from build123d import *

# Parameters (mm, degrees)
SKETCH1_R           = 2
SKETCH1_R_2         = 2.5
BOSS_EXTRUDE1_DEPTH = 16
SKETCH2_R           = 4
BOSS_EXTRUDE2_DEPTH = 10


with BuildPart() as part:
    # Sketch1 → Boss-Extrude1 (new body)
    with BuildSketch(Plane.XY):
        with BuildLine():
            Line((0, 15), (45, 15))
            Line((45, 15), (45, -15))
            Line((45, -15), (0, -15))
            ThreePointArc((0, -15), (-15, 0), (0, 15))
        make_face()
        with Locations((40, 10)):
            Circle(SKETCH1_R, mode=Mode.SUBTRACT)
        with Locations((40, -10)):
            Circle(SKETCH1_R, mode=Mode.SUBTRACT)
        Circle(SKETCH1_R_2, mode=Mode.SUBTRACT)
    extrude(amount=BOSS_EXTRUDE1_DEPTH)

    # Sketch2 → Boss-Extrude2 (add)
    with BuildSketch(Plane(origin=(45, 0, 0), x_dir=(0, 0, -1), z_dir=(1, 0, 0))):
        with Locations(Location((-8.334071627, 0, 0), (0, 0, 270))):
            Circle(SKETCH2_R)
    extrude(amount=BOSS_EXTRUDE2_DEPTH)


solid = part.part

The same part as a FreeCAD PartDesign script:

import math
import FreeCAD as App
import Part
import Sketcher

V = App.Vector

doc = App.newDocument("Part")
body = doc.addObject("PartDesign::Body", "Body")

sketch1 = doc.addObject("Sketcher::SketchObject", "Sketch")
body.addObject(sketch1)
sketch1.AttachmentSupport = (doc.XY_Plane, [""])
sketch1.MapMode = "FlatFace"
sketch1.addGeometry([
    Part.LineSegment(V(45, 15, 0), V(0, 15, 0)),
    Part.ArcOfCircle(Part.Circle(V(0, 0, 0), V(0, 0, 1), 15), math.radians(90), math.radians(270)),
    Part.LineSegment(V(0, -15, 0), V(45, -15, 0)),
    Part.LineSegment(V(45, -15, 0), V(45, 15, 0)),
    Part.Circle(V(40, -10, 0), V(0, 0, 1), 2),
    Part.Circle(V(40, 10, 0), V(0, 0, 1), 2),
    Part.Circle(V(0, 0, 0), V(0, 0, 1), 2.5),
], False)
sketch1.addConstraint([
    Sketcher.Constraint("Tangent", 0, 2, 1, 1),
    Sketcher.Constraint("Tangent", 1, 2, 2, 1),
    Sketcher.Constraint("Coincident", 2, 2, 3, 1),
    Sketcher.Constraint("Coincident", 3, 2, 0, 1),
    Sketcher.Constraint("Horizontal", 0),
    Sketcher.Constraint("Horizontal", 2),
    Sketcher.Constraint("Vertical", 3),
    Sketcher.Constraint("Coincident", 1, 3, -1, 1),
    Sketcher.Constraint("Coincident", 6, 3, -1, 1),
    Sketcher.Constraint("Equal", 4, 5),
    Sketcher.Constraint("Symmetric", 4, 3, 5, 3, -1),
    Sketcher.Constraint("Diameter", 4, 4.0),
    Sketcher.Constraint("Diameter", 6, 5.0),
    Sketcher.Constraint("Radius", 1, 15.0),
    Sketcher.Constraint("DistanceX", 0, 2, 0, 1, 45.0),
    Sketcher.Constraint("DistanceX", -1, 1, 4, 3, 40.0),
    Sketcher.Constraint("DistanceY", 4, 3, -1, 1, 10.0),
])
pad1 = doc.addObject("PartDesign::Pad", "Pad")
body.addObject(pad1)
pad1.Profile = sketch1
pad1.Length = 16

sketch2 = doc.addObject("Sketcher::SketchObject", "Sketch001")
body.addObject(sketch2)
sketch2.AttachmentSupport = (doc.YZ_Plane, [""])
sketch2.MapMode = "FlatFace"
sketch2.AttachmentOffset = App.Placement(V(0, 0, 45), App.Rotation())
sketch2.addGeometry(Part.Circle(V(0, 8.3, 0), V(0, 0, 1), 4), False)
sketch2.addConstraint([
    Sketcher.Constraint("PointOnObject", 0, 3, -2),
    Sketcher.Constraint("Diameter", 0, 8.0),
    Sketcher.Constraint("DistanceY", -1, 1, 0, 3, 8.334072),
])
pad2 = doc.addObject("PartDesign::Pad", "Pad001")
body.addObject(pad2)
pad2.Profile = sketch2
pad2.Length = 10

doc.recompute()
